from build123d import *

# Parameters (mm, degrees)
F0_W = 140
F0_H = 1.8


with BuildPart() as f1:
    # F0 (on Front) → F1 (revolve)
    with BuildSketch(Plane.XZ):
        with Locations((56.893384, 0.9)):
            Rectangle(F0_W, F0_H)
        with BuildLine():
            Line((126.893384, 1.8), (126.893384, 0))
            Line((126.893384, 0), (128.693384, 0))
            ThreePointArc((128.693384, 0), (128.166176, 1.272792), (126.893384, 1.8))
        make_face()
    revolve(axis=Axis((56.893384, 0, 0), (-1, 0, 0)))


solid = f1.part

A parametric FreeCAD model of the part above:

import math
import FreeCAD as App
import Part
import Sketcher
Q = App.Units.Quantity

doc = App.newDocument("Part")
body = doc.addObject("PartDesign::Body", "Body")

# Sketch on XZ plane
sketch1 = body.newObject("Sketcher::SketchObject", "Sketch")
sketch1.AttachmentSupport = (doc.getObject("XZ_Plane"), [""])
sketch1.MapMode = "FlatFace"
sketch1.addGeometry([
    Part.LineSegment(App.Vector(-13.106616, 1.8, 0), App.Vector(-13.106616, 0, 0)),
    Part.LineSegment(App.Vector(-13.106616, 0, 0), App.Vector(128.693384, 0, 0)),
    Part.ArcOfCircle(Part.Circle(App.Vector(126.893383, -0.000001, 0), App.Vector(0, 0, 1), 1.800001), math.radians(0.000022), math.radians(89.999978)),
    Part.LineSegment(App.Vector(126.893384, 1.8, 0), App.Vector(-13.106616, 1.8, 0)),
], False)
sketch1.addConstraint([
    Sketcher.Constraint("Coincident", 0, 2, 1, 1),
    Sketcher.Constraint("Coincident", 1, 2, 2, 1),
    Sketcher.Constraint("Tangent", 2, 2, 3, 1),
    Sketcher.Constraint("Coincident", 3, 2, 0, 1),
    Sketcher.Constraint("Vertical", 0),
    Sketcher.Constraint("Horizontal", 1),
    Sketcher.Constraint("Horizontal", 3),
    Sketcher.Constraint("PointOnObject", 2, 3, -1),
    Sketcher.Constraint("PointOnObject", 0, 2, -1),
    Sketcher.Constraint("Radius", 2, Q("1.800001 mm")),
    Sketcher.Constraint("DistanceX", 3, 2, 3, 1, Q("140 mm")),
    Sketcher.Constraint("DistanceX", -1, 1, 2, 3, Q("126.893383 mm")),
])
revolution = body.newObject("PartDesign::Revolution", "Revolution")
revolution.Profile = sketch1
revolution.ReferenceAxis = (sketch1, ["H_Axis"])
revolution.Angle = 360

doc.recompute()
